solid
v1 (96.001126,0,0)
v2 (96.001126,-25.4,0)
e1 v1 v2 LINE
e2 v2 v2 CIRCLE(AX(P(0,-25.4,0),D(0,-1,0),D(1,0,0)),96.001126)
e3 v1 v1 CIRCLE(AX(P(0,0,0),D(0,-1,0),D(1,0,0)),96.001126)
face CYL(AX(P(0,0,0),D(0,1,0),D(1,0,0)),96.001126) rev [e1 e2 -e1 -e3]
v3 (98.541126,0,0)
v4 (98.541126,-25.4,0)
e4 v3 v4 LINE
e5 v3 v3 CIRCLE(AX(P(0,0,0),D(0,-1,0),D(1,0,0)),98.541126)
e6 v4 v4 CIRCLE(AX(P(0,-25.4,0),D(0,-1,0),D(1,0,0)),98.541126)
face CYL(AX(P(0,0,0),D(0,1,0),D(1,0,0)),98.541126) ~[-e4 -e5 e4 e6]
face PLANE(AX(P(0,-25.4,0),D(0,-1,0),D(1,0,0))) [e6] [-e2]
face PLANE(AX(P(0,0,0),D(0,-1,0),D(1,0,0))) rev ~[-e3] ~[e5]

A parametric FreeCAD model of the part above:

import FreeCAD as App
import Part
import Sketcher

V = App.Vector
Q = App.Units.Quantity


def faces_at(feature, points):
    """Names of the faces that lie closest to the given points."""
    faces = feature.Shape.Faces
    near = lambda p: min(range(len(faces)), key=lambda i: faces[i].distToShape(Part.Vertex(*p))[0])
    return sorted({f"Face{near(p) + 1}" for p in points})

doc = App.newDocument("Part")
body = doc.addObject("PartDesign::Body", "Body")

# Sketch on XZ plane
sketch1 = body.newObject("Sketcher::SketchObject", "Sketch")
sketch1.AttachmentSupport = (doc.getObject("XZ_Plane"), [""])
sketch1.MapMode = "FlatFace"
sketch1.addGeometry(Part.Circle(V(0, 0, 0), V(0, 0, 1), 99), False)
sketch1.addConstraint(Sketcher.Constraint("Coincident", 0, 3, -1, 1))
sketch1.addConstraint(Sketcher.Constraint("Diameter", 0, Q("197.082252 mm")))
pad1 = body.newObject("PartDesign::Pad", "Pad")
pad1.Profile = sketch1
pad1.Length = Q("1 in")
doc.recompute()

thickness = body.newObject("PartDesign::Thickness", "Thickness")
thickness.Base = (pad1, faces_at(pad1, [(0, -25.4, 0), (0, 0, 0)]))
thickness.Value = Q("0.1 in")
thickness.Reversed = True
thickness.Join = "Arc"

doc.recompute()
